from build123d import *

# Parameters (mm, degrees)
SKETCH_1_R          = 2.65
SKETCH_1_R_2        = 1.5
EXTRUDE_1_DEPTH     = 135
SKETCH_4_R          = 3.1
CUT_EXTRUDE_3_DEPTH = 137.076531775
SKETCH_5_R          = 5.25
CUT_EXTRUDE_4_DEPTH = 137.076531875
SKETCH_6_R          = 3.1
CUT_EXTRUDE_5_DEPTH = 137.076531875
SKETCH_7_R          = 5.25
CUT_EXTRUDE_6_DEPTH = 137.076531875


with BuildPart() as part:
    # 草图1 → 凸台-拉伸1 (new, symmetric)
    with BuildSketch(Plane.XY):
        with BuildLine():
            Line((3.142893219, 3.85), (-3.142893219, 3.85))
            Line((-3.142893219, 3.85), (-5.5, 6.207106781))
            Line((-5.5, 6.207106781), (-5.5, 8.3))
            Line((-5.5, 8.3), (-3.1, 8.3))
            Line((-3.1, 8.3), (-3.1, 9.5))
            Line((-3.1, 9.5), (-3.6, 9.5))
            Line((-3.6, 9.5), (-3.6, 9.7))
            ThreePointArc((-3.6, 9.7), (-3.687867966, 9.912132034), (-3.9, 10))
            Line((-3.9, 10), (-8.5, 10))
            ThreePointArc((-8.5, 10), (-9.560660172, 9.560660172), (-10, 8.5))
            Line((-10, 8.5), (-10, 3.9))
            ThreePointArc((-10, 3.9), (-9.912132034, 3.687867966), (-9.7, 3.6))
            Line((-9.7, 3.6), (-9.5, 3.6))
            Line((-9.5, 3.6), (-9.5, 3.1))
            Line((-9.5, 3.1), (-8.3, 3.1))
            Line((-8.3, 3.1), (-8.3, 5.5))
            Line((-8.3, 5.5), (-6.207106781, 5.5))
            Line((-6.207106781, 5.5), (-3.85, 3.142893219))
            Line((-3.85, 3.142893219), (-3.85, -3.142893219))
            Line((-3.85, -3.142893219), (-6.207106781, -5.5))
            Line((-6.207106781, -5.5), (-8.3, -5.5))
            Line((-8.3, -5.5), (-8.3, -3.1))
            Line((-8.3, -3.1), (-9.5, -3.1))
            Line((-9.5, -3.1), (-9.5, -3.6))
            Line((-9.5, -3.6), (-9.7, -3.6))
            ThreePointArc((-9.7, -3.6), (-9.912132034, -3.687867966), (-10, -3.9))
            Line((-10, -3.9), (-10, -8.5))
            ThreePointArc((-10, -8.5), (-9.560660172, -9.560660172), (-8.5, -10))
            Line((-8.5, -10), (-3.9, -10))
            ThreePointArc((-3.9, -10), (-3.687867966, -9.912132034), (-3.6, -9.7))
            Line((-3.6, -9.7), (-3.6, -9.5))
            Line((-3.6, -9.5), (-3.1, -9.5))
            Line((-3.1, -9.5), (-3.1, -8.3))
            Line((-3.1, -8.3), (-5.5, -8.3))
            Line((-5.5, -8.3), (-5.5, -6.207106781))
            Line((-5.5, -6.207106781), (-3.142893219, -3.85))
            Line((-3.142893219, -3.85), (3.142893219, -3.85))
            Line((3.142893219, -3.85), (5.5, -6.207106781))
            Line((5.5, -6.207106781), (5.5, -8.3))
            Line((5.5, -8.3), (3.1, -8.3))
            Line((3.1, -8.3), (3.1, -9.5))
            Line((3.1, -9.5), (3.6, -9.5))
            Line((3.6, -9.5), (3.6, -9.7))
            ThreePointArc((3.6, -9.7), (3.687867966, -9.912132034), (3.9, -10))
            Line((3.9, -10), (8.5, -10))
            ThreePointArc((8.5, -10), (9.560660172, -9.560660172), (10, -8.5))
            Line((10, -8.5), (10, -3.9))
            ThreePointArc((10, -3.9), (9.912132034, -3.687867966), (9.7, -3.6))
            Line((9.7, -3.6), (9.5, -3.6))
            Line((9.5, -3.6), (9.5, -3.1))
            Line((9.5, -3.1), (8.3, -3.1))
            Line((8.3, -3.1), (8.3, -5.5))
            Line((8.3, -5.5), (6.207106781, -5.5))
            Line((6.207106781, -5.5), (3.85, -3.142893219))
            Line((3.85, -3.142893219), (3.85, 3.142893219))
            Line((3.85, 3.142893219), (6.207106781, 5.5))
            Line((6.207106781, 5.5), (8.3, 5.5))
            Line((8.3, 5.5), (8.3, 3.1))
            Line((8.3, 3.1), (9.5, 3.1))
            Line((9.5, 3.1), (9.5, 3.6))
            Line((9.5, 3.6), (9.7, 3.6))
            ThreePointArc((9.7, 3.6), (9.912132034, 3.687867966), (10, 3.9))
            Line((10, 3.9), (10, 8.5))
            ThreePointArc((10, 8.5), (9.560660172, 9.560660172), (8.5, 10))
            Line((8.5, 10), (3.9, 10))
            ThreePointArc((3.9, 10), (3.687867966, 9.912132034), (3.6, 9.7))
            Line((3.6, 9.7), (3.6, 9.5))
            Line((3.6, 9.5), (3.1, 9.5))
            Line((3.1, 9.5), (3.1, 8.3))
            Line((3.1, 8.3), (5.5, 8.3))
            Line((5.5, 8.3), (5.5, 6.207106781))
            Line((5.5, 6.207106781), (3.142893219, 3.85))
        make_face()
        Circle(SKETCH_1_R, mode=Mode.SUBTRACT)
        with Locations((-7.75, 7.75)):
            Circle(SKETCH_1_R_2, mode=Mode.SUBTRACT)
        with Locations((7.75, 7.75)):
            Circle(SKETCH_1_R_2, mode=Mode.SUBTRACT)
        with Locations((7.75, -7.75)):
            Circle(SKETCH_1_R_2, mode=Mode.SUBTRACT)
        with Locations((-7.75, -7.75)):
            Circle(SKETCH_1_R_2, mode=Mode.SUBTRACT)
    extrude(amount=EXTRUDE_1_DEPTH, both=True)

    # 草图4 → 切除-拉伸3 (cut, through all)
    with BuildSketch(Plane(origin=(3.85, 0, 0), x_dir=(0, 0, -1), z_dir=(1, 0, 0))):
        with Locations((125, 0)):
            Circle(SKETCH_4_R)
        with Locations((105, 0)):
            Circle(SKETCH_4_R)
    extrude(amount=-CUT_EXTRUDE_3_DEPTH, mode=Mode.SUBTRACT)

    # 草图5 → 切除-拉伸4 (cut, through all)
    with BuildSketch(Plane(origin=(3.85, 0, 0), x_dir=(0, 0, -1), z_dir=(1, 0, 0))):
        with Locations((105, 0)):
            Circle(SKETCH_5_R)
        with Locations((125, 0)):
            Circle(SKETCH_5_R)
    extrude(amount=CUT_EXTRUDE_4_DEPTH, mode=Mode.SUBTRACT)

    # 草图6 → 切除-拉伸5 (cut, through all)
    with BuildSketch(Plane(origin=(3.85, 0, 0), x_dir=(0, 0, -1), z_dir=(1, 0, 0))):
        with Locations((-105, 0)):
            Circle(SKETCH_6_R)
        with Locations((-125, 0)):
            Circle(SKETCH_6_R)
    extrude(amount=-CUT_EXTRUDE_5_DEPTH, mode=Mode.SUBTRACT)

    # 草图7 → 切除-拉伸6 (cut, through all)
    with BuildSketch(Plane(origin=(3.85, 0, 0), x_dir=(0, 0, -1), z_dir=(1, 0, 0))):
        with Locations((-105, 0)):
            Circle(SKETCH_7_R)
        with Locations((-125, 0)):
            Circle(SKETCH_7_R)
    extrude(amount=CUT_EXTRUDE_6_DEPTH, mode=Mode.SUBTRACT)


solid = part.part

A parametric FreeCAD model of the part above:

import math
import FreeCAD as App
import Part
import Sketcher

V = App.Vector
Q = App.Units.Quantity

doc = App.newDocument("Part")
body = doc.addObject("PartDesign::Body", "Body")

# Sketch on XY plane
sketch1 = body.newObject("Sketcher::SketchObject", "Sketch")
sketch1.AttachmentSupport = (doc.getObject("XY_Plane"), [""])
sketch1.MapMode = "FlatFace"
sketch1.addGeometry([
    Part.LineSegment(V(3.142893, 3.85, 0), V(-3.142893, 3.85, 0)),  # 0
    Part.LineSegment(V(-3.142893, 3.85, 0), V(-5.5, 6.207107, 0)),  # 1
    Part.LineSegment(V(-5.5, 6.207107, 0), V(-5.5, 8.3, 0)),  # 2
    Part.LineSegment(V(-5.5, 8.3, 0), V(-3.1, 8.3, 0)),  # 3
    Part.LineSegment(V(-3.1, 8.3, 0), V(-3.1, 9.5, 0)),  # 4
    Part.LineSegment(V(-3.1, 9.5, 0), V(-3.6, 9.5, 0)),  # 5
    Part.LineSegment(V(-3.6, 9.5, 0), V(-3.6, 9.7, 0)),  # 6
    Part.ArcOfCircle(Part.Circle(V(-3.9, 9.7, 0), V(0, 0, 1), 0.3), math.radians(0), math.radians(90)),  # 7
    Part.LineSegment(V(-3.9, 10, 0), V(-8.5, 10, 0)),  # 8
    Part.ArcOfCircle(Part.Circle(V(-8.5, 8.5, 0), V(0, 0, 1), 1.5), math.radians(90), math.radians(180)),  # 9
    Part.LineSegment(V(-10, 8.5, 0), V(-10, 3.9, 0)),  # 10
    Part.ArcOfCircle(Part.Circle(V(-9.7, 3.9, 0), V(0, 0, 1), 0.3), math.radians(-180), math.radians(-90)),  # 11
    Part.LineSegment(V(-9.7, 3.6, 0), V(-9.5, 3.6, 0)),  # 12
    Part.LineSegment(V(-9.5, 3.6, 0), V(-9.5, 3.1, 0)),  # 13
    Part.LineSegment(V(-9.5, 3.1, 0), V(-8.3, 3.1, 0)),  # 14
    Part.LineSegment(V(-8.3, 3.1, 0), V(-8.3, 5.5, 0)),  # 15
    Part.LineSegment(V(-8.3, 5.5, 0), V(-6.207107, 5.5, 0)),  # 16
    Part.LineSegment(V(-6.207107, 5.5, 0), V(-3.85, 3.142893, 0)),  # 17
    Part.LineSegment(V(-3.85, 3.142893, 0), V(-3.85, -3.142893, 0)),  # 18
    Part.LineSegment(V(-3.85, -3.142893, 0), V(-6.207107, -5.5, 0)),  # 19
    Part.LineSegment(V(-6.207107, -5.5, 0), V(-8.3, -5.5, 0)),  # 20
    Part.LineSegment(V(-8.3, -5.5, 0), V(-8.3, -3.1, 0)),  # 21
    Part.LineSegment(V(-8.3, -3.1, 0), V(-9.5, -3.1, 0)),  # 22
    Part.LineSegment(V(-9.5, -3.1, 0), V(-9.5, -3.6, 0)),  # 23
    Part.LineSegment(V(-9.5, -3.6, 0), V(-9.7, -3.6, 0)),  # 24
    Part.ArcOfCircle(Part.Circle(V(-9.7, -3.9, 0), V(0, 0, 1), 0.3), math.radians(90), math.radians(180)),  # 25
    Part.LineSegment(V(-10, -3.9, 0), V(-10, -8.5, 0)),  # 26
    Part.ArcOfCircle(Part.Circle(V(-8.5, -8.5, 0), V(0, 0, 1), 1.5), math.radians(180), math.radians(270)),  # 27
    Part.LineSegment(V(-8.5, -10, 0), V(-3.9, -10, 0)),  # 28
    Part.ArcOfCircle(Part.Circle(V(-3.9, -9.7, 0), V(0, 0, 1), 0.3), math.radians(-90), math.radians(0)),  # 29
    Part.LineSegment(V(-3.6, -9.7, 0), V(-3.6, -9.5, 0)),  # 30
    Part.LineSegment(V(-3.6, -9.5, 0), V(-3.1, -9.5, 0)),  # 31
    Part.LineSegment(V(-3.1, -9.5, 0), V(-3.1, -8.3, 0)),  # 32
    Part.LineSegment(V(-3.1, -8.3, 0), V(-5.5, -8.3, 0)),  # 33
    Part.LineSegment(V(-5.5, -8.3, 0), V(-5.5, -6.207107, 0)),  # 34
    Part.LineSegment(V(-5.5, -6.207107, 0), V(-3.142893, -3.85, 0)),  # 35
    Part.LineSegment(V(-3.142893, -3.85, 0), V(3.142893, -3.85, 0)),  # 36
    Part.LineSegment(V(3.142893, -3.85, 0), V(5.5, -6.207107, 0)),  # 37
    Part.LineSegment(V(5.5, -6.207107, 0), V(5.5, -8.3, 0)),  # 38
    Part.LineSegment(V(5.5, -8.3, 0), V(3.1, -8.3, 0)),  # 39
    Part.LineSegment(V(3.1, -8.3, 0), V(3.1, -9.5, 0)),  # 40
    Part.LineSegment(V(3.1, -9.5, 0), V(3.6, -9.5, 0)),  # 41
    Part.LineSegment(V(3.6, -9.5, 0), V(3.6, -9.7, 0)),  # 42
    Part.ArcOfCircle(Part.Circle(V(3.9, -9.7, 0), V(0, 0, 1), 0.3), math.radians(-180), math.radians(-90)),  # 43
    Part.LineSegment(V(3.9, -10, 0), V(8.5, -10, 0)),  # 44
    Part.ArcOfCircle(Part.Circle(V(8.5, -8.5, 0), V(0, 0, 1), 1.5), math.radians(-90), math.radians(0)),  # 45
    Part.LineSegment(V(10, -8.5, 0), V(10, -3.9, 0)),  # 46
    Part.ArcOfCircle(Part.Circle(V(9.7, -3.9, 0), V(0, 0, 1), 0.3), math.radians(0), math.radians(90)),  # 47
    Part.LineSegment(V(9.7, -3.6, 0), V(9.5, -3.6, 0)),  # 48
    Part.LineSegment(V(9.5, -3.6, 0), V(9.5, -3.1, 0)),  # 49
    Part.LineSegment(V(9.5, -3.1, 0), V(8.3, -3.1, 0)),  # 50
    Part.LineSegment(V(8.3, -3.1, 0), V(8.3, -5.5, 0)),  # 51
    Part.LineSegment(V(8.3, -5.5, 0), V(6.207107, -5.5, 0)),  # 52
    Part.LineSegment(V(6.207107, -5.5, 0), V(3.85, -3.142893, 0)),  # 53
    Part.LineSegment(V(3.85, -3.142893, 0), V(3.85, 3.142893, 0)),  # 54
    Part.LineSegment(V(3.85, 3.142893, 0), V(6.207107, 5.5, 0)),  # 55
    Part.LineSegment(V(6.207107, 5.5, 0), V(8.3, 5.5, 0)),  # 56
    Part.LineSegment(V(8.3, 5.5, 0), V(8.3, 3.1, 0)),  # 57
    Part.LineSegment(V(8.3, 3.1, 0), V(9.5, 3.1, 0)),  # 58
    Part.LineSegment(V(9.5, 3.1, 0), V(9.5, 3.6, 0)),  # 59
    Part.LineSegment(V(9.5, 3.6, 0), V(9.7, 3.6, 0)),  # 60
    Part.ArcOfCircle(Part.Circle(V(9.7, 3.9, 0), V(0, 0, 1), 0.3), math.radians(-90), math.radians(0)),  # 61
    Part.LineSegment(V(10, 3.9, 0), V(10, 8.5, 0)),  # 62
    Part.ArcOfCircle(Part.Circle(V(8.5, 8.5, 0), V(0, 0, 1), 1.5), math.radians(0), math.radians(90)),  # 63
    Part.LineSegment(V(8.5, 10, 0), V(3.9, 10, 0)),  # 64
    Part.ArcOfCircle(Part.Circle(V(3.9, 9.7, 0), V(0, 0, 1), 0.3), math.radians(90), math.radians(180)),  # 65
    Part.LineSegment(V(3.6, 9.7, 0), V(3.6, 9.5, 0)),  # 66
    Part.LineSegment(V(3.6, 9.5, 0), V(3.1, 9.5, 0)),  # 67
    Part.LineSegment(V(3.1, 9.5, 0), V(3.1, 8.3, 0)),  # 68
    Part.LineSegment(V(3.1, 8.3, 0), V(5.5, 8.3, 0)),  # 69
    Part.LineSegment(V(5.5, 8.3, 0), V(5.5, 6.207107, 0)),  # 70
    Part.LineSegment(V(5.5, 6.207107, 0), V(3.142893, 3.85, 0)),  # 71
    Part.Circle(V(-7.75, -7.75, 0), V(0, 0, 1), 1.5),  # 72
    Part.Circle(V(7.75, -7.75, 0), V(0, 0, 1), 1.5),  # 73
    Part.Circle(V(-7.75, 7.75, 0), V(0, 0, 1), 1.5),  # 74
    Part.Circle(V(0, 0, 0), V(0, 0, 1), 2.65),  # 75
    Part.Circle(V(7.75, 7.75, 0), V(0, 0, 1), 1.5),  # 76
], False)
sketch1.addConstraint([
    Sketcher.Constraint("Coincident", 0, 2, 1, 1),
    Sketcher.Constraint("Coincident", 1, 2, 2, 1),
    Sketcher.Constraint("Coincident", 2, 2, 3, 1),
    Sketcher.Constraint("Coincident", 3, 2, 4, 1),
    Sketcher.Constraint("Coincident", 4, 2, 5, 1),
    Sketcher.Constraint("Coincident", 5, 2, 6, 1),
    Sketcher.Constraint("Tangent", 6, 2, 7, 1),
    Sketcher.Constraint("Tangent", 7, 2, 8, 1),
    Sketcher.Constraint("Tangent", 8, 2, 9, 1),
    Sketcher.Constraint("Tangent", 9, 2, 10, 1),
    Sketcher.Constraint("Tangent", 10, 2, 11, 1),
    Sketcher.Constraint("Tangent", 11, 2, 12, 1),
    Sketcher.Constraint("Coincident", 12, 2, 13, 1),
    Sketcher.Constraint("Coincident", 13, 2, 14, 1),
    Sketcher.Constraint("Coincident", 14, 2, 15, 1),
    Sketcher.Constraint("Coincident", 15, 2, 16, 1),
    Sketcher.Constraint("Coincident", 16, 2, 17, 1),
    Sketcher.Constraint("Coincident", 17, 2, 18, 1),
    Sketcher.Constraint("Coincident", 18, 2, 19, 1),
    Sketcher.Constraint("Coincident", 19, 2, 20, 1),
    Sketcher.Constraint("Coincident", 20, 2, 21, 1),
    Sketcher.Constraint("Coincident", 21, 2, 22, 1),
    Sketcher.Constraint("Coincident", 22, 2, 23, 1),
    Sketcher.Constraint("Coincident", 23, 2, 24, 1),
    Sketcher.Constraint("Tangent", 24, 2, 25, 1),
    Sketcher.Constraint("Tangent", 25, 2, 26, 1),
    Sketcher.Constraint("Tangent", 26, 2, 27, 1),
    Sketcher.Constraint("Tangent", 27, 2, 28, 1),
    Sketcher.Constraint("Tangent", 28, 2, 29, 1),
    Sketcher.Constraint("Tangent", 29, 2, 30, 1),
    Sketcher.Constraint("Coincident", 30, 2, 31, 1),
    Sketcher.Constraint("Coincident", 31, 2, 32, 1),
    Sketcher.Constraint("Coincident", 32, 2, 33, 1),
    Sketcher.Constraint("Coincident", 33, 2, 34, 1),
    Sketcher.Constraint("Coincident", 34, 2, 35, 1),
    Sketcher.Constraint("Coincident", 35, 2, 36, 1),
    Sketcher.Constraint("Coincident", 36, 2, 37, 1),
    Sketcher.Constraint("Coincident", 37, 2, 38, 1),
    Sketcher.Constraint("Coincident", 38, 2, 39, 1),
    Sketcher.Constraint("Coincident", 39, 2, 40, 1),
    Sketcher.Constraint("Coincident", 40, 2, 41, 1),
    Sketcher.Constraint("Coincident", 41, 2, 42, 1),
    Sketcher.Constraint("Tangent", 42, 2, 43, 1),
    Sketcher.Constraint("Tangent", 43, 2, 44, 1),
    Sketcher.Constraint("Tangent", 44, 2, 45, 1),
    Sketcher.Constraint("Tangent", 45, 2, 46, 1),
    Sketcher.Constraint("Tangent", 46, 2, 47, 1),
    Sketcher.Constraint("Tangent", 47, 2, 48, 1),
    Sketcher.Constraint("Coincident", 48, 2, 49, 1),
    Sketcher.Constraint("Coincident", 49, 2, 50, 1),
    Sketcher.Constraint("Coincident", 50, 2, 51, 1),
    Sketcher.Constraint("Coincident", 51, 2, 52, 1),
    Sketcher.Constraint("Coincident", 52, 2, 53, 1),
    Sketcher.Constraint("Coincident", 53, 2, 54, 1),
    Sketcher.Constraint("Coincident", 54, 2, 55, 1),
    Sketcher.Constraint("Coincident", 55, 2, 56, 1),
    Sketcher.Constraint("Coincident", 56, 2, 57, 1),
    Sketcher.Constraint("Coincident", 57, 2, 58, 1),
    Sketcher.Constraint("Coincident", 58, 2, 59, 1),
    Sketcher.Constraint("Coincident", 59, 2, 60, 1),
    Sketcher.Constraint("Tangent", 60, 2, 61, 1),
    Sketcher.Constraint("Tangent", 61, 2, 62, 1),
    Sketcher.Constraint("Tangent", 62, 2, 63, 1),
    Sketcher.Constraint("Tangent", 63, 2, 64, 1),
    Sketcher.Constraint("Tangent", 64, 2, 65, 1),
    Sketcher.Constraint("Tangent", 65, 2, 66, 1),
    Sketcher.Constraint("Coincident", 66, 2, 67, 1),
    Sketcher.Constraint("Coincident", 67, 2, 68, 1),
    Sketcher.Constraint("Coincident", 68, 2, 69, 1),
    Sketcher.Constraint("Coincident", 69, 2, 70, 1),
    Sketcher.Constraint("Coincident", 70, 2, 71, 1),
    Sketcher.Constraint("Coincident", 71, 2, 0, 1),
    Sketcher.Constraint("Horizontal", 0),
    Sketcher.Constraint("Vertical", 2),
    Sketcher.Constraint("Horizontal", 3),
    Sketcher.Constraint("Vertical", 4),
    Sketcher.Constraint("Horizontal", 5),
    Sketcher.Constraint("Vertical", 6),
    Sketcher.Constraint("Horizontal", 8),
    Sketcher.Constraint("Vertical", 10),
    Sketcher.Constraint("Horizontal", 12),
    Sketcher.Constraint("Vertical", 13),
    Sketcher.Constraint("Horizontal", 14),
    Sketcher.Constraint("Vertical", 15),
    Sketcher.Constraint("Horizontal", 16),
    Sketcher.Constraint("Vertical", 18),
    Sketcher.Constraint("Horizontal", 20),
    Sketcher.Constraint("Vertical", 21),
    Sketcher.Constraint("Horizontal", 22),
    Sketcher.Constraint("Vertical", 23),
    Sketcher.Constraint("Horizontal", 24),
    Sketcher.Constraint("Vertical", 26),
    Sketcher.Constraint("Horizontal", 28),
    Sketcher.Constraint("Vertical", 30),
    Sketcher.Constraint("Horizontal", 31),
    Sketcher.Constraint("Vertical", 32),
    Sketcher.Constraint("Horizontal", 33),
    Sketcher.Constraint("Vertical", 34),
    Sketcher.Constraint("Horizontal", 36),
    Sketcher.Constraint("Vertical", 38),
    Sketcher.Constraint("Horizontal", 39),
    Sketcher.Constraint("Vertical", 40),
    Sketcher.Constraint("Horizontal", 41),
    Sketcher.Constraint("Vertical", 42),
    Sketcher.Constraint("Horizontal", 44),
    Sketcher.Constraint("Vertical", 46),
    Sketcher.Constraint("Horizontal", 48),
    Sketcher.Constraint("Vertical", 49),
    Sketcher.Constraint("Horizontal", 50),
    Sketcher.Constraint("Vertical", 51),
    Sketcher.Constraint("Horizontal", 52),
    Sketcher.Constraint("Vertical", 54),
    Sketcher.Constraint("Horizontal", 56),
    Sketcher.Constraint("Vertical", 57),
    Sketcher.Constraint("Horizontal", 58),
    Sketcher.Constraint("Vertical", 59),
    Sketcher.Constraint("Horizontal", 60),
    Sketcher.Constraint("Vertical", 62),
    Sketcher.Constraint("Horizontal", 64),
    Sketcher.Constraint("Vertical", 66),
    Sketcher.Constraint("Horizontal", 67),
    Sketcher.Constraint("Vertical", 68),
    Sketcher.Constraint("Horizontal", 69),
    Sketcher.Constraint("Vertical", 70),
    Sketcher.Constraint("Coincident", 75, 3, -1, 1),
    Sketcher.Constraint("Equal", 7, 11),
    Sketcher.Constraint("Equal", 11, 25),
    Sketcher.Constraint("Equal", 9, 27),
    Sketcher.Constraint("Equal", 25, 29),
    Sketcher.Constraint("Equal", 29, 43),
    Sketcher.Constraint("Equal", 27, 45),
    Sketcher.Constraint("Equal", 43, 47),
    Sketcher.Constraint("Equal", 47, 61),
    Sketcher.Constraint("Equal", 45, 63),
    Sketcher.Constraint("Equal", 61, 65),
    Sketcher.Constraint("Equal", 63, 72),
    Sketcher.Constraint("Equal", 72, 73),
    Sketcher.Constraint("Equal", 73, 74),
    Sketcher.Constraint("Equal", 74, 76),
    Sketcher.Constraint("Symmetric", 7, 3, 43, 3, -1, 1),
    Sketcher.Constraint("Symmetric", 11, 3, 47, 3, -1, 1),
    Sketcher.Constraint("Symmetric", 25, 3, 61, 3, -1, 1),
    Sketcher.Constraint("Symmetric", 29, 3, 65, 3, -1, 1),
    Sketcher.Constraint("Symmetric", 73, 3, 74, 3, -1, 1),
    Sketcher.Constraint("Symmetric", 72, 3, 76, 3, -1, 1),
    Sketcher.Constraint("Symmetric", 0, 2, 36, 2, -1, 1),
    Sketcher.Constraint("Symmetric", 1, 2, 37, 2, -1, 1),
    Sketcher.Constraint("Symmetric", 3, 2, 39, 2, -1, 1),
    Sketcher.Constraint("Symmetric", 13, 2, 49, 2, -1, 1),
    Sketcher.Constraint("Symmetric", 15, 2, 51, 2, -1, 1),
    Sketcher.Constraint("Symmetric", 17, 2, 53, 2, -1, 1),
    Sketcher.Constraint("Symmetric", 19, 2, 55, 2, -1, 1),
    Sketcher.Constraint("Symmetric", 21, 2, 57, 2, -1, 1),
    Sketcher.Constraint("Symmetric", 31, 2, 67, 2, -1, 1),
    Sketcher.Constraint("Symmetric", 33, 2, 69, 2, -1, 1),
    Sketcher.Constraint("Symmetric", 29, 3, 43, 3, -2),
    Sketcher.Constraint("Symmetric", 25, 3, 47, 3, -2),
    Sketcher.Constraint("Symmetric", 72, 3, 73, 3, -2),
    Sketcher.Constraint("Symmetric", 34, 2, 37, 2, -2),
    Sketcher.Constraint("Symmetric", 32, 2, 39, 2, -2),
    Sketcher.Constraint("Symmetric", 22, 2, 49, 2, -2),
    Sketcher.Constraint("Symmetric", 20, 2, 51, 2, -2),
    Sketcher.Constraint("Parallel", 1, 17),
    Sketcher.Constraint("Perpendicular", 17, 19),
    Sketcher.Constraint("Parallel", 19, 35),
    Sketcher.Constraint("Parallel", 37, 53),
    Sketcher.Constraint("Perpendicular", 53, 55),
    Sketcher.Constraint("Parallel", 55, 71),
    Sketcher.Constraint("Horizontal", 31, 2, 40, 2),
    Sketcher.Constraint("Horizontal", 18, 2, 53, 2),
    Sketcher.Constraint("Horizontal", 5, 2, 66, 2),
    Sketcher.Constraint("Horizontal", 1, 2, 70, 2),
    Sketcher.Constraint("Vertical", 16, 2, 19, 2),
    Sketcher.Constraint("Vertical", 49, 2, 58, 2),
    Sketcher.Constraint("Equal", 56, 2),
    Sketcher.Constraint("Equal", 58, 4),
    Sketcher.Constraint("Equal", 60, 6),
    Sketcher.Constraint("Equal", 64, 10),
    Sketcher.Constraint("Equal", 67, 13),
    Sketcher.Constraint("Equal", 69, 15),
    Sketcher.Constraint("Equal", 36, 18),
    Sketcher.Constraint("Equal", 1, 17),
    Sketcher.Constraint("Diameter", 72, Q("3 mm")),
    Sketcher.Constraint("Diameter", 75, Q("5.3 mm")),
    Sketcher.Constraint("Radius", 7, Q("0.3 mm")),
    Sketcher.Constraint("DistanceX", 3, 1, 3, 2, Q("2.4 mm")),
    Sketcher.Constraint("DistanceX", 5, 2, 5, 1, Q("0.5 mm")),
    Sketcher.Constraint("DistanceX", 8, 2, 8, 1, Q("4.6 mm")),
    Sketcher.Constraint("DistanceX", 12, 1, 12, 2, Q("0.2 mm")),
    Sketcher.Constraint("DistanceX", 14, 1, 14, 2, Q("1.2 mm")),
    Sketcher.Constraint("DistanceY", -1, 1, 7, 2, Q("10 mm")),
    Sketcher.Constraint("DistanceX", 72, 3, -1, 1, Q("7.75 mm")),
    Sketcher.Constraint("DistanceY", 72, 3, -1, 1, Q("7.75 mm")),
    Sketcher.Constraint("DistanceY", -1, 1, 0, 2, Q("3.85 mm")),
    Sketcher.Constraint("DistanceX", 0, 2, 0, 1, Q("6.285786 mm")),
])
pad1 = body.newObject("PartDesign::Pad", "Pad")
pad1.Profile = sketch1
pad1.Length = 270
pad1.Midplane = True

# Sketch on YZ plane
sketch2 = body.newObject("Sketcher::SketchObject", "Sketch001")
sketch2.AttachmentSupport = (doc.getObject("YZ_Plane"), [""])
sketch2.MapMode = "FlatFace"
sketch2.AttachmentOffset = App.Placement(V(0, 0, 3.85), App.Rotation())
sketch2.addGeometry([
    Part.Circle(V(0, -125, 0), V(0, 0, 1), 3.1),
    Part.Circle(V(0, -105, 0), V(0, 0, 1), 3.1),
], False)
sketch2.addConstraint([
    Sketcher.Constraint("Equal", 0, 1),
    Sketcher.Constraint("PointOnObject", 0, 3, -2),
    Sketcher.Constraint("PointOnObject", 1, 3, -2),
    Sketcher.Constraint("Diameter", 0, Q("6.2 mm")),
    Sketcher.Constraint("DistanceY", 0, 3, -1, 1, Q("125 mm")),
    Sketcher.Constraint("DistanceY", 1, 3, -1, 1, Q("105 mm")),
])
pocket1 = body.newObject("PartDesign::Pocket", "Pocket")
pocket1.Profile = sketch2
pocket1.Type = "ThroughAll"

# Sketch on YZ plane
sketch3 = body.newObject("Sketcher::SketchObject", "Sketch002")
sketch3.AttachmentSupport = (doc.getObject("YZ_Plane"), [""])
sketch3.MapMode = "FlatFace"
sketch3.AttachmentOffset = App.Placement(V(0, 0, 3.85), App.Rotation())
sketch3.addGeometry([
    Part.Circle(V(0, -105, 0), V(0, 0, 1), 5.25),
    Part.Circle(V(0, -125, 0), V(0, 0, 1), 5.25),
], False)
sketch3.addConstraint([
    Sketcher.Constraint("Equal", 0, 1),
    Sketcher.Constraint("PointOnObject", 0, 3, -2),
    Sketcher.Constraint("PointOnObject", 1, 3, -2),
    Sketcher.Constraint("Diameter", 0, Q("10.5 mm")),
    Sketcher.Constraint("DistanceY", 0, 3, -1, 1, Q("105 mm")),
    Sketcher.Constraint("DistanceY", 1, 3, -1, 1, Q("125 mm")),
])
pocket2 = body.newObject("PartDesign::Pocket", "Pocket001")
pocket2.Profile = sketch3
pocket2.Type = "ThroughAll"
pocket2.Reversed = True

# Sketch on YZ plane
sketch4 = body.newObject("Sketcher::SketchObject", "Sketch003")
sketch4.AttachmentSupport = (doc.getObject("YZ_Plane"), [""])
sketch4.MapMode = "FlatFace"
sketch4.AttachmentOffset = App.Placement(V(0, 0, 3.85), App.Rotation())
sketch4.addGeometry([
    Part.Circle(V(0, 105, 0), V(0, 0, 1), 3.1),
    Part.Circle(V(0, 125, 0), V(0, 0, 1), 3.1),
], False)
sketch4.addConstraint([
    Sketcher.Constraint("Equal", 0, 1),
    Sketcher.Constraint("PointOnObject", 0, 3, -2),
    Sketcher.Constraint("PointOnObject", 1, 3, -2),
    Sketcher.Constraint("Diameter", 0, Q("6.2 mm")),
    Sketcher.Constraint("DistanceY", -1, 1, 0, 3, Q("105 mm")),
    Sketcher.Constraint("DistanceY", -1, 1, 1, 3, Q("125 mm")),
])
pocket3 = body.newObject("PartDesign::Pocket", "Pocket002")
pocket3.Profile = sketch4
pocket3.Type = "ThroughAll"

# Sketch on YZ plane
sketch5 = body.newObject("Sketcher::SketchObject", "Sketch004")
sketch5.AttachmentSupport = (doc.getObject("YZ_Plane"), [""])
sketch5.MapMode = "FlatFace"
sketch5.AttachmentOffset = App.Placement(V(0, 0, 3.85), App.Rotation())
sketch5.addGeometry([
    Part.Circle(V(0, 105, 0), V(0, 0, 1), 5.25),
    Part.Circle(V(0, 125, 0), V(0, 0, 1), 5.25),
], False)
sketch5.addConstraint([
    Sketcher.Constraint("Equal", 0, 1),
    Sketcher.Constraint("PointOnObject", 0, 3, -2),
    Sketcher.Constraint("PointOnObject", 1, 3, -2),
    Sketcher.Constraint("Diameter", 0, Q("10.5 mm")),
    Sketcher.Constraint("DistanceY", -1, 1, 0, 3, Q("105 mm")),
    Sketcher.Constraint("DistanceY", -1, 1, 1, 3, Q("125 mm")),
])
pocket4 = body.newObject("PartDesign::Pocket", "Pocket003")
pocket4.Profile = sketch5
pocket4.Type = "ThroughAll"
pocket4.Reversed = True

doc.recompute()
